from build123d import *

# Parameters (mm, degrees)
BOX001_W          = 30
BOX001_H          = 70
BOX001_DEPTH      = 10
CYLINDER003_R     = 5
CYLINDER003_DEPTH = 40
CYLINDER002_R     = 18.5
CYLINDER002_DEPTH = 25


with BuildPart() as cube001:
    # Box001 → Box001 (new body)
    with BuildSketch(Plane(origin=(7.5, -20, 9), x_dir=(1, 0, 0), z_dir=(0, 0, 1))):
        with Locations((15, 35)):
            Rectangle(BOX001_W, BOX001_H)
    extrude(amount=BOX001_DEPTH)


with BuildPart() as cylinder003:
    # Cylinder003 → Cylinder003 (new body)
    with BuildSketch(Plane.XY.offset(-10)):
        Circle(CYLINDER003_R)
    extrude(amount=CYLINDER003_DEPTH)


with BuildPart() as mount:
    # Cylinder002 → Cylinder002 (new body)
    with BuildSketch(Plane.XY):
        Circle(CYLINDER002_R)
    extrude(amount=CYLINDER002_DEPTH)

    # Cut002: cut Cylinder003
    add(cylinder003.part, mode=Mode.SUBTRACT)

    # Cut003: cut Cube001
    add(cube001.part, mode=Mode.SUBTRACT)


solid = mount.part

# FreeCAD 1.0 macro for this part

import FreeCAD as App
import Part
import Sketcher

doc = App.newDocument("Part")
body = doc.addObject("PartDesign::Body", "Body")

# Sketch on XY plane
sketch1 = doc.addObject("Sketcher::SketchObject", "Sketch")
body.addObject(sketch1)
sketch1.AttachmentSupport = (doc.XY_Plane, [""])
sketch1.MapMode = "FlatFace"
sketch1.AttachmentOffset = App.Placement(App.Vector(0, 0, 9), App.Rotation())
sketch1.addGeometry(Part.LineSegment(App.Vector(7.5, 50, 0), App.Vector(7.5, -20, 0)), False)
sketch1.addGeometry(Part.LineSegment(App.Vector(7.5, -20, 0), App.Vector(37.5, -20, 0)), False)
sketch1.addGeometry(Part.LineSegment(App.Vector(37.5, -20, 0), App.Vector(37.5, 50, 0)), False)
sketch1.addGeometry(Part.LineSegment(App.Vector(37.5, 50, 0), App.Vector(7.5, 50, 0)), False)
sketch1.addConstraint(Sketcher.Constraint("Coincident", 0, 2, 1, 1))
sketch1.addConstraint(Sketcher.Constraint("Coincident", 1, 2, 2, 1))
sketch1.addConstraint(Sketcher.Constraint("Coincident", 2, 2, 3, 1))
sketch1.addConstraint(Sketcher.Constraint("Coincident", 3, 2, 0, 1))
sketch1.addConstraint(Sketcher.Constraint("Vertical", 0))
sketch1.addConstraint(Sketcher.Constraint("Horizontal", 1))
sketch1.addConstraint(Sketcher.Constraint("Vertical", 2))
sketch1.addConstraint(Sketcher.Constraint("Horizontal", 3))
sketch1.addConstraint(Sketcher.Constraint("DistanceX", 1, 1, 1, 2, 30.0))
sketch1.addConstraint(Sketcher.Constraint("DistanceY", 0, 2, 0, 1, 70.0))
sketch1.addConstraint(Sketcher.Constraint("DistanceY", 0, 2, -1, 1, 20.0))
sketch1.addConstraint(Sketcher.Constraint("DistanceX", -1, 1, 0, 2, 7.5))
pad1 = doc.addObject("PartDesign::Pad", "Pad")
body.addObject(pad1)
pad1.Profile = sketch1
pad1.Length = 10
body2 = doc.addObject("PartDesign::Body", "Body001")

# Sketch on XY plane
sketch2 = doc.addObject("Sketcher::SketchObject", "Sketch001")
body2.addObject(sketch2)
sketch2.AttachmentSupport = (doc.getObject("XY_Plane001"), [""])
sketch2.MapMode = "FlatFace"
sketch2.AttachmentOffset = App.Placement(App.Vector(0, 0, -10), App.Rotation())
sketch2.addGeometry(Part.Circle(App.Vector(0, 0, 0), App.Vector(0, 0, 1), 5), False)
sketch2.addConstraint(Sketcher.Constraint("Coincident", 0, 3, -1, 1))
sketch2.addConstraint(Sketcher.Constraint("Diameter", 0, 10.0))
pad2 = doc.addObject("PartDesign::Pad", "Pad001")
body2.addObject(pad2)
pad2.Profile = sketch2
pad2.Length = 40
body3 = doc.addObject("PartDesign::Body", "Body002")

# Sketch on XY plane
sketch3 = doc.addObject("Sketcher::SketchObject", "Sketch002")
body3.addObject(sketch3)
sketch3.AttachmentSupport = (doc.getObject("XY_Plane002"), [""])
sketch3.MapMode = "FlatFace"
sketch3.addGeometry(Part.Circle(App.Vector(0, 0, 0), App.Vector(0, 0, 1), 18.5), False)
sketch3.addConstraint(Sketcher.Constraint("Coincident", 0, 3, -1, 1))
sketch3.addConstraint(Sketcher.Constraint("Diameter", 0, 37.0))
pad3 = doc.addObject("PartDesign::Pad", "Pad002")
body3.addObject(pad3)
pad3.Profile = sketch3
pad3.Length = 25
doc.recompute()

boolean = doc.addObject("PartDesign::Boolean", "Boolean")
body3.addObject(boolean)
boolean.Type = "Cut"
boolean.addObjects([body2])
doc.recompute()

boolean2 = doc.addObject("PartDesign::Boolean", "Boolean001")
body3.addObject(boolean2)
boolean2.Type = "Cut"
boolean2.addObjects([body])

doc.recompute()
